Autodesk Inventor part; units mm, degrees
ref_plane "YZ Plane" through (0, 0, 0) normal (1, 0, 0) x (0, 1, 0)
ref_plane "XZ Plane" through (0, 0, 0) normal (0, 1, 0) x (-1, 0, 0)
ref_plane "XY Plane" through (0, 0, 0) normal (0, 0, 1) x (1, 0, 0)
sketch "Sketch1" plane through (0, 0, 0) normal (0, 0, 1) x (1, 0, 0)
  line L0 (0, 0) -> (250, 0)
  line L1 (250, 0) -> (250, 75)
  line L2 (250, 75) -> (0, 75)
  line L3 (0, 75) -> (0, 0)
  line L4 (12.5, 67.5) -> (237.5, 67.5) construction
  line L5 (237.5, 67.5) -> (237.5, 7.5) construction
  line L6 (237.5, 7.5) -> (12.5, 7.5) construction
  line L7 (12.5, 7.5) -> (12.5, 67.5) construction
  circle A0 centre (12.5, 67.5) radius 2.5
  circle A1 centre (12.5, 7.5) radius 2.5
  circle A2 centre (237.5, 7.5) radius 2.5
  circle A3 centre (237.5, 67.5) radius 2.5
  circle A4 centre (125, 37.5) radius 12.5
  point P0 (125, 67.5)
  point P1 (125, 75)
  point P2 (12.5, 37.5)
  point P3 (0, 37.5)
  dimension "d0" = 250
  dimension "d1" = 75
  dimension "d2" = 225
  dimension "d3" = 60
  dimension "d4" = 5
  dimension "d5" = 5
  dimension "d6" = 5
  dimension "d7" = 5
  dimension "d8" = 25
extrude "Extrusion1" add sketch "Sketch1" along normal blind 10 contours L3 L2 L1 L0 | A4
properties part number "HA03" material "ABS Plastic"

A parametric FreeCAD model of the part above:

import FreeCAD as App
import Part
import Sketcher
Q = App.Units.Quantity

doc = App.newDocument("Part")
body = doc.addObject("PartDesign::Body", "Body")

# Sketch on XY plane
sketch1 = body.newObject("Sketcher::SketchObject", "Sketch")
sketch1.AttachmentSupport = (doc.getObject("XY_Plane"), [""])
sketch1.MapMode = "FlatFace"
sketch1.addGeometry([
    Part.LineSegment(App.Vector(0, 75, 0), App.Vector(0, 0, 0)),  # 0
    Part.LineSegment(App.Vector(0, 0, 0), App.Vector(250, 0, 0)),  # 1
    Part.LineSegment(App.Vector(250, 0, 0), App.Vector(250, 75, 0)),  # 2
    Part.LineSegment(App.Vector(250, 75, 0), App.Vector(0, 75, 0)),  # 3
    Part.Circle(App.Vector(12.5, 7.5, 0), App.Vector(0, 0, 1), 2.5),  # 4
    Part.Circle(App.Vector(237.5, 7.5, 0), App.Vector(0, 0, 1), 2.5),  # 5
    Part.Circle(App.Vector(12.5, 67.5, 0), App.Vector(0, 0, 1), 2.5),  # 6
    Part.Circle(App.Vector(237.5, 67.5, 0), App.Vector(0, 0, 1), 2.5),  # 7
], False)
sketch1.addConstraint([
    Sketcher.Constraint("Coincident", 0, 2, 1, 1),
    Sketcher.Constraint("Coincident", 1, 2, 2, 1),
    Sketcher.Constraint("Coincident", 2, 2, 3, 1),
    Sketcher.Constraint("Coincident", 3, 2, 0, 1),
    Sketcher.Constraint("Vertical", 0),
    Sketcher.Constraint("Horizontal", 1),
    Sketcher.Constraint("Vertical", 2),
    Sketcher.Constraint("Horizontal", 3),
    Sketcher.Constraint("Coincident", 0, 2, -1, 1),
    Sketcher.Constraint("Equal", 4, 5),
    Sketcher.Constraint("Equal", 5, 6),
    Sketcher.Constraint("Equal", 6, 7),
    Sketcher.Constraint("Horizontal", 4, 3, 5, 3),
    Sketcher.Constraint("Horizontal", 6, 3, 7, 3),
    Sketcher.Constraint("Vertical", 4, 3, 6, 3),
    Sketcher.Constraint("Vertical", 5, 3, 7, 3),
    Sketcher.Constraint("Diameter", 4, Q("5 mm")),
    Sketcher.Constraint("DistanceX", 1, 1, 1, 2, Q("250 mm")),
    Sketcher.Constraint("DistanceY", 0, 2, 0, 1, Q("75 mm")),
    Sketcher.Constraint("DistanceX", 4, 3, 5, 3, Q("225 mm")),
    Sketcher.Constraint("DistanceY", 4, 3, 6, 3, Q("60 mm")),
    Sketcher.Constraint("DistanceX", -1, 1, 4, 3, Q("12.5 mm")),
    Sketcher.Constraint("DistanceY", -1, 1, 4, 3, Q("7.5 mm")),
])
pad1 = body.newObject("PartDesign::Pad", "Pad")
pad1.Profile = sketch1
pad1.Length = 10

doc.recompute()
